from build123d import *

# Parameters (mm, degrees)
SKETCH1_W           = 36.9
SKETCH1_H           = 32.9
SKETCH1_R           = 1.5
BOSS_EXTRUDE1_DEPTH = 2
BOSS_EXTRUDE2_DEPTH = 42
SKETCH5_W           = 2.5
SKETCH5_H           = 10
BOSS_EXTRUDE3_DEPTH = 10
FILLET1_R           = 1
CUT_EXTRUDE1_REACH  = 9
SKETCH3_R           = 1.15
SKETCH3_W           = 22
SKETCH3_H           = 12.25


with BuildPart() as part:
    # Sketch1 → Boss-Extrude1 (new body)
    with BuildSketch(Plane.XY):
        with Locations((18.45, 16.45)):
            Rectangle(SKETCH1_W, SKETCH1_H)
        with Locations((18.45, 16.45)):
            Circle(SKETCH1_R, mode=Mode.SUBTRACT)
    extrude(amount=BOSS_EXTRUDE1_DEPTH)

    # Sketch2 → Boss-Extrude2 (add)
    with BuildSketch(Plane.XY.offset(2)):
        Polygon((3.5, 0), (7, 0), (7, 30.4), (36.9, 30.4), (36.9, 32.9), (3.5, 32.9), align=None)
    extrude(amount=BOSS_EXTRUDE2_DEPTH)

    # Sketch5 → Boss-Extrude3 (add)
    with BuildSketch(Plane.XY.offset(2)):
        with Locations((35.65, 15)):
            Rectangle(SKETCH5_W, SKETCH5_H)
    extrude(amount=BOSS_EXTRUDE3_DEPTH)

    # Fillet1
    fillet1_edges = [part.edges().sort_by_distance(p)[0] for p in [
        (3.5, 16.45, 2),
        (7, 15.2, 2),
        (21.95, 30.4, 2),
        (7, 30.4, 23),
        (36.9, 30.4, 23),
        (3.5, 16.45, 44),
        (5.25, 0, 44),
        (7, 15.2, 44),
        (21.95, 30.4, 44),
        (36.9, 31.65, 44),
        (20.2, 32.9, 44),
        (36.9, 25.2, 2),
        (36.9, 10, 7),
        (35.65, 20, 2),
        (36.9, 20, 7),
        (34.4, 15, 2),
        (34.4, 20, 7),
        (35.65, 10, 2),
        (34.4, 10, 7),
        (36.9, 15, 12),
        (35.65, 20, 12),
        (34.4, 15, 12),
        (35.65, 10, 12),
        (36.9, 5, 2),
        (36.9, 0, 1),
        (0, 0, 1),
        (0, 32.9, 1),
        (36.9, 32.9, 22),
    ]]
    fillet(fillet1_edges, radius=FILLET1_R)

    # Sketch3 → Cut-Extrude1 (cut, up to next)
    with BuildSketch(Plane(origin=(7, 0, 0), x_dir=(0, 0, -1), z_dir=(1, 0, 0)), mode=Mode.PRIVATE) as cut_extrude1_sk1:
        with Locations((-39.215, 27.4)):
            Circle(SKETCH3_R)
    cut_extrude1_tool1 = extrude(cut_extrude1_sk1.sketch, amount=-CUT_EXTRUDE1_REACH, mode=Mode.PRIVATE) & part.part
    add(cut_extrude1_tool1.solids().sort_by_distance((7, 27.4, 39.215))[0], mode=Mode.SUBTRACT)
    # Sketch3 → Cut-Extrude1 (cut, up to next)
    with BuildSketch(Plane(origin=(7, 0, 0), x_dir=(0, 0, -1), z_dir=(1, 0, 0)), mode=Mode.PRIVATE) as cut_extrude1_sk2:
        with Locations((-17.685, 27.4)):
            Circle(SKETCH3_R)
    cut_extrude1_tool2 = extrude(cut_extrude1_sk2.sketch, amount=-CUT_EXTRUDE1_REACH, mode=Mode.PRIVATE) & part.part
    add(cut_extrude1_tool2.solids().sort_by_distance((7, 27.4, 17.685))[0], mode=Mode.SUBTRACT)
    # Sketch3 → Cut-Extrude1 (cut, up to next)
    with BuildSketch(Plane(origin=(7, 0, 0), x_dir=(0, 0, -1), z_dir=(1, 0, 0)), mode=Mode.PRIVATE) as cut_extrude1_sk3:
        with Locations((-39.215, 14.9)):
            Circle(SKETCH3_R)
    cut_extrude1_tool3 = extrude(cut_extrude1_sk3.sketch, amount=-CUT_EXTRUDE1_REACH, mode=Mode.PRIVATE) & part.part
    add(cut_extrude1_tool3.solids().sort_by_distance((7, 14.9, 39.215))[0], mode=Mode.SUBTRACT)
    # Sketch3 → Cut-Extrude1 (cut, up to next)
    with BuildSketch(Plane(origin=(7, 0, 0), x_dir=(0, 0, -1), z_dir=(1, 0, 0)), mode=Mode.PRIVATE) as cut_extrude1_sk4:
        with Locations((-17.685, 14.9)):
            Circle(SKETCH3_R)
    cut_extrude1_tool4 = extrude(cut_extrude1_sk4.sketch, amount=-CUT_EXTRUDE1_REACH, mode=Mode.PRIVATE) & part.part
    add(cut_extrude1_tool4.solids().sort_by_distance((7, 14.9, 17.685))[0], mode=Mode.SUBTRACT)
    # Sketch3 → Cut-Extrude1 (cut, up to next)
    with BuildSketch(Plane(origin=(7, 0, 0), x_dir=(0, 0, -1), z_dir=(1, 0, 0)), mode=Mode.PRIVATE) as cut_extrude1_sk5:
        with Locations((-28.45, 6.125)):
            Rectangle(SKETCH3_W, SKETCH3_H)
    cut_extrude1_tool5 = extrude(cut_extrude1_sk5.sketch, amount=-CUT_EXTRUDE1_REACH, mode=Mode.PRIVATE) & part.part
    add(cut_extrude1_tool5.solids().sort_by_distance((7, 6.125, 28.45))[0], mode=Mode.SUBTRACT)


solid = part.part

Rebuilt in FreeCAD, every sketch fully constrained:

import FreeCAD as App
import Part
import Sketcher

V = App.Vector


def edges_at(feature, points):
    """Names of the edges that pass closest to the given points."""
    edges = feature.Shape.Edges
    near = lambda p: min(range(len(edges)), key=lambda i: edges[i].distToShape(Part.Vertex(*p))[0])
    return sorted({f"Edge{near(p) + 1}" for p in points})

doc = App.newDocument("Part")
body = doc.addObject("PartDesign::Body", "Body")

sketch1 = body.newObject("Sketcher::SketchObject", "Sketch")
sketch1.AttachmentSupport = (doc.getObject("XY_Plane"), [""])
sketch1.MapMode = "FlatFace"
sketch1.addGeometry(Part.LineSegment(V(0, 32.9, 0), V(0, 0, 0)), False)
sketch1.addGeometry(Part.LineSegment(V(0, 0, 0), V(36.9, 0, 0)), False)
sketch1.addGeometry(Part.LineSegment(V(36.9, 0, 0), V(36.9, 32.9, 0)), False)
sketch1.addGeometry(Part.LineSegment(V(36.9, 32.9, 0), V(0, 32.9, 0)), False)
sketch1.addGeometry(Part.Circle(V(18.45, 16.45, 0), V(0, 0, 1), 1.5), False)
sketch1.addConstraint(Sketcher.Constraint("Coincident", 0, 2, 1, 1))
sketch1.addConstraint(Sketcher.Constraint("Coincident", 1, 2, 2, 1))
sketch1.addConstraint(Sketcher.Constraint("Coincident", 2, 2, 3, 1))
sketch1.addConstraint(Sketcher.Constraint("Coincident", 3, 2, 0, 1))
sketch1.addConstraint(Sketcher.Constraint("Vertical", 0))
sketch1.addConstraint(Sketcher.Constraint("Horizontal", 1))
sketch1.addConstraint(Sketcher.Constraint("Vertical", 2))
sketch1.addConstraint(Sketcher.Constraint("Horizontal", 3))
sketch1.addConstraint(Sketcher.Constraint("Coincident", 0, 2, -1, 1))
sketch1.addConstraint(Sketcher.Constraint("Diameter", 4, 3.0))
sketch1.addConstraint(Sketcher.Constraint("DistanceX", 1, 1, 1, 2, 36.9))
sketch1.addConstraint(Sketcher.Constraint("DistanceY", 0, 2, 0, 1, 32.9))
sketch1.addConstraint(Sketcher.Constraint("DistanceX", -1, 1, 4, 3, 18.45))
sketch1.addConstraint(Sketcher.Constraint("DistanceY", -1, 1, 4, 3, 16.45))
pad1 = body.newObject("PartDesign::Pad", "Pad")
pad1.Profile = sketch1
pad1.Length = 2

sketch2 = body.newObject("Sketcher::SketchObject", "Sketch001")
sketch2.AttachmentSupport = (doc.getObject("XY_Plane"), [""])
sketch2.MapMode = "FlatFace"
sketch2.AttachmentOffset = App.Placement(V(0, 0, 2), App.Rotation())
sketch2.addGeometry(Part.LineSegment(V(3.5, 0, 0), V(7, 0, 0)), False)
sketch2.addGeometry(Part.LineSegment(V(7, 0, 0), V(7, 30.4, 0)), False)
sketch2.addGeometry(Part.LineSegment(V(7, 30.4, 0), V(36.9, 30.4, 0)), False)
sketch2.addGeometry(Part.LineSegment(V(36.9, 30.4, 0), V(36.9, 32.9, 0)), False)
sketch2.addGeometry(Part.LineSegment(V(36.9, 32.9, 0), V(3.5, 32.9, 0)), False)
sketch2.addGeometry(Part.LineSegment(V(3.5, 32.9, 0), V(3.5, 0, 0)), False)
sketch2.addConstraint(Sketcher.Constraint("Coincident", 0, 2, 1, 1))
sketch2.addConstraint(Sketcher.Constraint("Coincident", 1, 2, 2, 1))
sketch2.addConstraint(Sketcher.Constraint("Coincident", 2, 2, 3, 1))
sketch2.addConstraint(Sketcher.Constraint("Coincident", 3, 2, 4, 1))
sketch2.addConstraint(Sketcher.Constraint("Coincident", 4, 2, 5, 1))
sketch2.addConstraint(Sketcher.Constraint("Coincident", 5, 2, 0, 1))
sketch2.addConstraint(Sketcher.Constraint("Horizontal", 0))
sketch2.addConstraint(Sketcher.Constraint("Vertical", 1))
sketch2.addConstraint(Sketcher.Constraint("Horizontal", 2))
sketch2.addConstraint(Sketcher.Constraint("Vertical", 3))
sketch2.addConstraint(Sketcher.Constraint("Horizontal", 4))
sketch2.addConstraint(Sketcher.Constraint("Vertical", 5))
sketch2.addConstraint(Sketcher.Constraint("PointOnObject", 0, 2, -1))
sketch2.addConstraint(Sketcher.Constraint("DistanceX", 0, 1, 0, 2, 3.5))
sketch2.addConstraint(Sketcher.Constraint("DistanceX", 2, 1, 2, 2, 29.9))
sketch2.addConstraint(Sketcher.Constraint("DistanceY", 1, 1, 1, 2, 30.4))
sketch2.addConstraint(Sketcher.Constraint("DistanceY", 3, 1, 3, 2, 2.5))
sketch2.addConstraint(Sketcher.Constraint("DistanceX", -1, 1, 0, 2, 7.0))
pad2 = body.newObject("PartDesign::Pad", "Pad001")
pad2.Profile = sketch2
pad2.Length = 42

sketch3 = body.newObject("Sketcher::SketchObject", "Sketch002")
sketch3.AttachmentSupport = (doc.getObject("XY_Plane"), [""])
sketch3.MapMode = "FlatFace"
sketch3.AttachmentOffset = App.Placement(V(0, 0, 2), App.Rotation())
sketch3.addGeometry(Part.LineSegment(V(34.4, 20, 0), V(34.4, 10, 0)), False)
sketch3.addGeometry(Part.LineSegment(V(34.4, 10, 0), V(36.9, 10, 0)), False)
sketch3.addGeometry(Part.LineSegment(V(36.9, 10, 0), V(36.9, 20, 0)), False)
sketch3.addGeometry(Part.LineSegment(V(36.9, 20, 0), V(34.4, 20, 0)), False)
sketch3.addConstraint(Sketcher.Constraint("Coincident", 0, 2, 1, 1))
sketch3.addConstraint(Sketcher.Constraint("Coincident", 1, 2, 2, 1))
sketch3.addConstraint(Sketcher.Constraint("Coincident", 2, 2, 3, 1))
sketch3.addConstraint(Sketcher.Constraint("Coincident", 3, 2, 0, 1))
sketch3.addConstraint(Sketcher.Constraint("Vertical", 0))
sketch3.addConstraint(Sketcher.Constraint("Horizontal", 1))
sketch3.addConstraint(Sketcher.Constraint("Vertical", 2))
sketch3.addConstraint(Sketcher.Constraint("Horizontal", 3))
sketch3.addConstraint(Sketcher.Constraint("DistanceY", 0, 2, 0, 1, 10.0))
sketch3.addConstraint(Sketcher.Constraint("DistanceX", 1, 1, 1, 2, 2.5))
sketch3.addConstraint(Sketcher.Constraint("DistanceY", -1, 1, 0, 2, 10.0))
sketch3.addConstraint(Sketcher.Constraint("DistanceX", -1, 1, 0, 2, 34.4))
pad3 = body.newObject("PartDesign::Pad", "Pad002")
pad3.Profile = sketch3
pad3.Length = 10
doc.recompute()

fillet = body.newObject("PartDesign::Fillet", "Fillet")
fillet.Base = (pad3, edges_at(pad3, [
    (3.5, 16.45, 2),
    (7, 15.2, 2),
    (21.95, 30.4, 2),
    (7, 30.4, 23),
    (36.9, 30.4, 23),
    (3.5, 16.45, 44),
    (5.25, 0, 44),
    (7, 15.2, 44),
    (21.95, 30.4, 44),
    (36.9, 31.65, 44),
    (20.2, 32.9, 44),
    (36.9, 25.2, 2),
    (36.9, 10, 7),
    (35.65, 20, 2),
    (36.9, 20, 7),
    (34.4, 15, 2),
    (34.4, 20, 7),
    (35.65, 10, 2),
    (34.4, 10, 7),
    (36.9, 15, 12),
    (35.65, 20, 12),
    (34.4, 15, 12),
    (35.65, 10, 12),
    (36.9, 5, 2),
    (36.9, 0, 1),
    (0, 0, 1),
    (0, 32.9, 1),
    (36.9, 32.9, 22),
]))
fillet.Radius = 1

sketch4 = body.newObject("Sketcher::SketchObject", "Sketch003")
sketch4.AttachmentSupport = (doc.getObject("YZ_Plane"), [""])
sketch4.MapMode = "FlatFace"
sketch4.AttachmentOffset = App.Placement(V(0, 0, 7), App.Rotation())
sketch4.addGeometry(Part.Circle(V(27.4, 39.215, 0), V(0, 0, 1), 1.15), False)
sketch4.addConstraint(Sketcher.Constraint("Diameter", 0, 2.3))
sketch4.addConstraint(Sketcher.Constraint("DistanceX", -1, 1, 0, 3, 27.4))
sketch4.addConstraint(Sketcher.Constraint("DistanceY", -1, 1, 0, 3, 39.215))
pocket1 = body.newObject("PartDesign::Pocket", "Pocket")
pocket1.Profile = sketch4
pocket1.Type = "UpToFirst"

sketch5 = body.newObject("Sketcher::SketchObject", "Sketch004")
sketch5.AttachmentSupport = (doc.getObject("YZ_Plane"), [""])
sketch5.MapMode = "FlatFace"
sketch5.AttachmentOffset = App.Placement(V(0, 0, 7), App.Rotation())
sketch5.addGeometry(Part.Circle(V(27.4, 17.685, 0), V(0, 0, 1), 1.15), False)
sketch5.addConstraint(Sketcher.Constraint("Diameter", 0, 2.3))
sketch5.addConstraint(Sketcher.Constraint("DistanceX", -1, 1, 0, 3, 27.4))
sketch5.addConstraint(Sketcher.Constraint("DistanceY", -1, 1, 0, 3, 17.685))
pocket2 = body.newObject("PartDesign::Pocket", "Pocket001")
pocket2.Profile = sketch5
pocket2.Type = "UpToFirst"

sketch6 = body.newObject("Sketcher::SketchObject", "Sketch005")
sketch6.AttachmentSupport = (doc.getObject("YZ_Plane"), [""])
sketch6.MapMode = "FlatFace"
sketch6.AttachmentOffset = App.Placement(V(0, 0, 7), App.Rotation())
sketch6.addGeometry(Part.Circle(V(14.9, 39.215, 0), V(0, 0, 1), 1.15), False)
sketch6.addConstraint(Sketcher.Constraint("Diameter", 0, 2.3))
sketch6.addConstraint(Sketcher.Constraint("DistanceX", -1, 1, 0, 3, 14.9))
sketch6.addConstraint(Sketcher.Constraint("DistanceY", -1, 1, 0, 3, 39.215))
pocket3 = body.newObject("PartDesign::Pocket", "Pocket002")
pocket3.Profile = sketch6
pocket3.Type = "UpToFirst"

sketch7 = body.newObject("Sketcher::SketchObject", "Sketch006")
sketch7.AttachmentSupport = (doc.getObject("YZ_Plane"), [""])
sketch7.MapMode = "FlatFace"
sketch7.AttachmentOffset = App.Placement(V(0, 0, 7), App.Rotation())
sketch7.addGeometry(Part.Circle(V(14.9, 17.685, 0), V(0, 0, 1), 1.15), False)
sketch7.addConstraint(Sketcher.Constraint("Diameter", 0, 2.3))
sketch7.addConstraint(Sketcher.Constraint("DistanceX", -1, 1, 0, 3, 14.9))
sketch7.addConstraint(Sketcher.Constraint("DistanceY", -1, 1, 0, 3, 17.685))
pocket4 = body.newObject("PartDesign::Pocket", "Pocket003")
pocket4.Profile = sketch7
pocket4.Type = "UpToFirst"

sketch8 = body.newObject("Sketcher::SketchObject", "Sketch007")
sketch8.AttachmentSupport = (doc.getObject("YZ_Plane"), [""])
sketch8.MapMode = "FlatFace"
sketch8.AttachmentOffset = App.Placement(V(0, 0, 7), App.Rotation())
sketch8.addGeometry(Part.LineSegment(V(12.25, 39.45, 0), V(0, 39.45, 0)), False)
sketch8.addGeometry(Part.LineSegment(V(0, 39.45, 0), V(0, 17.45, 0)), False)
sketch8.addGeometry(Part.LineSegment(V(0, 17.45, 0), V(12.25, 17.45, 0)), False)
sketch8.addGeometry(Part.LineSegment(V(12.25, 17.45, 0), V(12.25, 39.45, 0)), False)
sketch8.addConstraint(Sketcher.Constraint("Coincident", 0, 2, 1, 1))
sketch8.addConstraint(Sketcher.Constraint("Coincident", 1, 2, 2, 1))
sketch8.addConstraint(Sketcher.Constraint("Coincident", 2, 2, 3, 1))
sketch8.addConstraint(Sketcher.Constraint("Coincident", 3, 2, 0, 1))
sketch8.addConstraint(Sketcher.Constraint("Horizontal", 0))
sketch8.addConstraint(Sketcher.Constraint("Vertical", 1))
sketch8.addConstraint(Sketcher.Constraint("Horizontal", 2))
sketch8.addConstraint(Sketcher.Constraint("Vertical", 3))
sketch8.addConstraint(Sketcher.Constraint("PointOnObject", 0, 2, -2))
sketch8.addConstraint(Sketcher.Constraint("DistanceY", 1, 2, 1, 1, 22.0))
sketch8.addConstraint(Sketcher.Constraint("DistanceX", 0, 2, 0, 1, 12.25))
sketch8.addConstraint(Sketcher.Constraint("DistanceY", -1, 1, 0, 2, 39.45))
pocket5 = body.newObject("PartDesign::Pocket", "Pocket004")
pocket5.Profile = sketch8
pocket5.Type = "UpToFirst"

doc.recompute()
